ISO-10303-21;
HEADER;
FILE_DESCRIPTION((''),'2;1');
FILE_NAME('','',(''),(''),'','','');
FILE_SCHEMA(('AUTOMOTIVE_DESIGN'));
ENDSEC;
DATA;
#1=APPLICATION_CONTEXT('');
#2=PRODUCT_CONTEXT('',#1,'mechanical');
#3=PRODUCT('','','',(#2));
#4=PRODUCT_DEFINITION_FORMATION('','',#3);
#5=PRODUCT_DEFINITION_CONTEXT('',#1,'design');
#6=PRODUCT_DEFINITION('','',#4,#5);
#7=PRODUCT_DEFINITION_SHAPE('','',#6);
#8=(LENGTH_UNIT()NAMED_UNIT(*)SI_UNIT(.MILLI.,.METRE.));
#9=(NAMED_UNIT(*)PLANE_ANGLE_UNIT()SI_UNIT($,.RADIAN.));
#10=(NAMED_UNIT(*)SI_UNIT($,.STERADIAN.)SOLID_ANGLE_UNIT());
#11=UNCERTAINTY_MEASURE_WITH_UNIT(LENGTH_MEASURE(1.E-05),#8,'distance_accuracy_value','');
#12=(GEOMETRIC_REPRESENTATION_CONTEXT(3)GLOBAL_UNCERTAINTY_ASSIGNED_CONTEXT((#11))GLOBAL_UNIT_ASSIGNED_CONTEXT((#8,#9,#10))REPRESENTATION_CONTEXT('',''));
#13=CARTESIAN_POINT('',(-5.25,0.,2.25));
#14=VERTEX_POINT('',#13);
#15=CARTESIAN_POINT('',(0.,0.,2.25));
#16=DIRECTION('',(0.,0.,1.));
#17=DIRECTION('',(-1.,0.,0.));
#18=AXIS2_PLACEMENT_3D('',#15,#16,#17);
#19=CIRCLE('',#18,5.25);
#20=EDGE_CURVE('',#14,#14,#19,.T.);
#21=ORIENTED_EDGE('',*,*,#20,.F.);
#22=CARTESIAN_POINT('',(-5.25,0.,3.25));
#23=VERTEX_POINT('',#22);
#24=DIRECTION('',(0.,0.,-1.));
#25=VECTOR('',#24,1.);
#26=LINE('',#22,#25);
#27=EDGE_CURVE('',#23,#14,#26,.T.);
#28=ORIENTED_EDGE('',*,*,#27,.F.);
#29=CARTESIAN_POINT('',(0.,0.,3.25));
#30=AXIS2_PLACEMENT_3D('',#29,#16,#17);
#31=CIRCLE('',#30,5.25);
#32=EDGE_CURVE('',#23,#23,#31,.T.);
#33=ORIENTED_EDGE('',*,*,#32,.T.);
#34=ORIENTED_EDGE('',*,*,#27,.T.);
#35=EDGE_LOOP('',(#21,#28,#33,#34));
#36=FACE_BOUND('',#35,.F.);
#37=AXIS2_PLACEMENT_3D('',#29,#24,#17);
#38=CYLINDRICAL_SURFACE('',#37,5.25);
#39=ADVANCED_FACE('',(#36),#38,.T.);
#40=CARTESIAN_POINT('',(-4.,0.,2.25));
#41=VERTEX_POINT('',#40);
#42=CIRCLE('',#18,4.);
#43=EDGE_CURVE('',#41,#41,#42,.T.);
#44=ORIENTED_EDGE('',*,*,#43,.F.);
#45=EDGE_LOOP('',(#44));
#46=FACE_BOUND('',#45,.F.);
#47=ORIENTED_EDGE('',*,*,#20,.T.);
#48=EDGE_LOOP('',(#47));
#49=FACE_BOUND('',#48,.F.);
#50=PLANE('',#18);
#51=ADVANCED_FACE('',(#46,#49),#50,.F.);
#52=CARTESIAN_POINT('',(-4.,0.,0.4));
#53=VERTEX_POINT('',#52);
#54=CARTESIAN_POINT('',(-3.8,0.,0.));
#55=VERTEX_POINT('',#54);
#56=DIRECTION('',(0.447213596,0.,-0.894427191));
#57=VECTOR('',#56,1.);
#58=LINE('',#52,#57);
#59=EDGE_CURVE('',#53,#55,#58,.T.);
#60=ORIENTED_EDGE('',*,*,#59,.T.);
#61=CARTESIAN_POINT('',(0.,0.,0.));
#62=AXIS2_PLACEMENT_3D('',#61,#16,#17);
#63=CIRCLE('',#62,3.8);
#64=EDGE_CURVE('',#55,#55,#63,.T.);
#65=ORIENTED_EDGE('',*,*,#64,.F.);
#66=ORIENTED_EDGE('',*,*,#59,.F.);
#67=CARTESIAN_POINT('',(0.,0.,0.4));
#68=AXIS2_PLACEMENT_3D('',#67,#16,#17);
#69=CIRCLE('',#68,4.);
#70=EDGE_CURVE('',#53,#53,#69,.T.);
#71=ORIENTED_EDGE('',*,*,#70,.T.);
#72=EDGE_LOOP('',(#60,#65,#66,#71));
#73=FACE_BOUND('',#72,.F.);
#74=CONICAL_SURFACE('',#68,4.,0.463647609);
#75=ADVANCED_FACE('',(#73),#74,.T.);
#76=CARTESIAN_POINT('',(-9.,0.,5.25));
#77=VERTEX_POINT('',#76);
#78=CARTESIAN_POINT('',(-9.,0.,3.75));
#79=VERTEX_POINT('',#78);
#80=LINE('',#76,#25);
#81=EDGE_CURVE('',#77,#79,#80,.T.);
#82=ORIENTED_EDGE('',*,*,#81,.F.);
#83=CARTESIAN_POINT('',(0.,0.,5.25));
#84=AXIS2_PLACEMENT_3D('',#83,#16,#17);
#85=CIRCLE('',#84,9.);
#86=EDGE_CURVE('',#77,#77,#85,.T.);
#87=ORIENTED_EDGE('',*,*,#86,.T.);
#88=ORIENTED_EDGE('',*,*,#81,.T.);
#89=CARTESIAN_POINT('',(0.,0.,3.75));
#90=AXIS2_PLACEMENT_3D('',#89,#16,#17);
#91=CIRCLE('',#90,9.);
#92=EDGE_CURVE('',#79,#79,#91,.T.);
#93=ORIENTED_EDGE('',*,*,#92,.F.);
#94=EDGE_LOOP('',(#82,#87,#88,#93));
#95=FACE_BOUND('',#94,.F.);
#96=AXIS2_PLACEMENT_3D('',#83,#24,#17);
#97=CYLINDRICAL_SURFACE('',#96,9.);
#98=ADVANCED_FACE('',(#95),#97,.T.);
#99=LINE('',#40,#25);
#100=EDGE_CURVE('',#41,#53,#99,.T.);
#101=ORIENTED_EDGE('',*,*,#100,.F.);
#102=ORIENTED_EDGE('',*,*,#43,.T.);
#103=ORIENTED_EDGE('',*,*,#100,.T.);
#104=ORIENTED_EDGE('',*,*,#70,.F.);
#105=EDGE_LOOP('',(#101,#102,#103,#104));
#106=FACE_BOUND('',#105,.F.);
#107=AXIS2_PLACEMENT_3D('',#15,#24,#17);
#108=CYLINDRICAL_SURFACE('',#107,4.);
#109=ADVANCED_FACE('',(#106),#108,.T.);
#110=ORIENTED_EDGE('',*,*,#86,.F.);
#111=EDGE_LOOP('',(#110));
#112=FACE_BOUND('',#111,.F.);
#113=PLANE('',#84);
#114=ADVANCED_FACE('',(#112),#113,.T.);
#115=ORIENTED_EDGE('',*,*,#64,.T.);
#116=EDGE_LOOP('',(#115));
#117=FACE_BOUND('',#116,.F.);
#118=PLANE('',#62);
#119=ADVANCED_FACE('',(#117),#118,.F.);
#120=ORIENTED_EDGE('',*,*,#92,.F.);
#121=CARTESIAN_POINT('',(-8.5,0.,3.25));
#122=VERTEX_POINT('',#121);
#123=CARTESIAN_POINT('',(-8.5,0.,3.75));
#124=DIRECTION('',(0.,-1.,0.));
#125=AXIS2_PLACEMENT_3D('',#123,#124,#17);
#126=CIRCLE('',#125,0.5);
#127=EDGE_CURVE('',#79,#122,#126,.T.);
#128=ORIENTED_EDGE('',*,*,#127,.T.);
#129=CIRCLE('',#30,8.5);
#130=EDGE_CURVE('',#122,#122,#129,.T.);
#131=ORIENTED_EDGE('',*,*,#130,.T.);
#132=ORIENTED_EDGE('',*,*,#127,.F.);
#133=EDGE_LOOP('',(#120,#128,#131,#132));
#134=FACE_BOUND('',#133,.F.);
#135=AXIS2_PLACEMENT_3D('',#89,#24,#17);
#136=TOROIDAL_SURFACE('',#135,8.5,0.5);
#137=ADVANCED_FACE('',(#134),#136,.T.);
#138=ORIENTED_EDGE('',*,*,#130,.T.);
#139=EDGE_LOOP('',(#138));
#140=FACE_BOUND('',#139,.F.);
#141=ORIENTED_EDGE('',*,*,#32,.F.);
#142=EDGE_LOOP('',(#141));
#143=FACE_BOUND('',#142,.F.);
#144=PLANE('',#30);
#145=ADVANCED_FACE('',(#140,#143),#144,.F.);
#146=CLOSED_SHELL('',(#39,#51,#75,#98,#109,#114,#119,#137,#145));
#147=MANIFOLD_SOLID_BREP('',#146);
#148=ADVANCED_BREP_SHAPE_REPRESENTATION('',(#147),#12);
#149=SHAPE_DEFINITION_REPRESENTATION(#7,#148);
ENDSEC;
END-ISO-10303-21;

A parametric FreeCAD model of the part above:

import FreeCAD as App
import Part
import Sketcher

V = App.Vector


def edges_at(feature, points):
    """Names of the edges that pass closest to the given points."""
    edges = feature.Shape.Edges
    near = lambda p: min(range(len(edges)), key=lambda i: edges[i].distToShape(Part.Vertex(*p))[0])
    return sorted({f"Edge{near(p) + 1}" for p in points})


def add_polygon(sketch, points):
    """Adds a closed chain of lines whose ends are joined by coincident constraints."""
    first, n = sketch.GeometryCount, len(points)
    for a, b in zip(points, points[1:] + points[:1]):
        sketch.addGeometry(Part.LineSegment(App.Vector(*a, 0), App.Vector(*b, 0)), False)
    for i in range(n):
        sketch.addConstraint(Sketcher.Constraint("Coincident", first + i, 2, first + (i + 1) % n, 1))

doc = App.newDocument("Part")
params = doc.addObject("Spreadsheet::Sheet", "Params")
for row, (alias, value) in enumerate([
    ("sketch1_width", "4 mm"),
    ("sketch1_width2", "9 mm"),
    ("sketch1_height", "2 mm"),
    ("sketch1_height2", "1 mm"),
    ("sketch1_width3", "3.75 mm"),
    ("revolution_angle", "360 deg"),
    ("fillet_radius", "0.5 mm"),
    ("chamfer_size", "0.4 mm"),
    ("chamfer_size2", "0.2 mm"),
], start=1):
    params.set(f"A{row}", alias)
    params.set(f"B{row}", "=" + value)
    params.setAlias(f"B{row}", alias)

body = doc.addObject("PartDesign::Body", "Body")

sketch1 = body.newObject("Sketcher::SketchObject", "Sketch")
sketch1.AttachmentSupport = (doc.getObject("XZ_Plane"), [""])
sketch1.MapMode = "FlatFace"
add_polygon(sketch1, [(-4, 0), (0, 0), (0, 5.2), (-9, 5.2), (-9, 3.2), (-5.2, 3.2), (-5.2, 2.2), (-4, 2.2)])
sketch1.addConstraint([
    Sketcher.Constraint("Horizontal", 0),
    Sketcher.Constraint("Vertical", 1),
    Sketcher.Constraint("Horizontal", 2),
    Sketcher.Constraint("Vertical", 3),
    Sketcher.Constraint("Horizontal", 4),
    Sketcher.Constraint("Vertical", 5),
    Sketcher.Constraint("Horizontal", 6),
    Sketcher.Constraint("Vertical", 7),
    Sketcher.Constraint("Coincident", 0, 2, -1, 1),
    Sketcher.Constraint("DistanceX", 0, 1, 0, 2, 4.0),
    Sketcher.Constraint("DistanceX", 2, 2, 2, 1, 9.0),
    Sketcher.Constraint("DistanceY", 3, 2, 3, 1, 2.0),
    Sketcher.Constraint("DistanceY", 5, 2, 5, 1, 1.0),
    Sketcher.Constraint("DistanceX", 4, 1, 4, 2, 3.75),
    Sketcher.Constraint("DistanceY", 1, 1, 1, 2, 5.25),
])
sketch1.setExpression("Constraints[17]", "Params.sketch1_width")
sketch1.setExpression("Constraints[18]", "Params.sketch1_width2")
sketch1.setExpression("Constraints[19]", "Params.sketch1_height")
sketch1.setExpression("Constraints[20]", "Params.sketch1_height2")
sketch1.setExpression("Constraints[21]", "Params.sketch1_width3")
revolution = body.newObject("PartDesign::Revolution", "Revolution")
revolution.Profile = sketch1
revolution.ReferenceAxis = (sketch1, ["V_Axis"])
revolution.setExpression("Angle", "Params.revolution_angle")
doc.recompute()

fillet = body.newObject("PartDesign::Fillet", "Fillet")
fillet.Base = (revolution, edges_at(revolution, [(9, 0, 3.25)]))
fillet.setExpression("Radius", "Params.fillet_radius")
doc.recompute()

chamfer = body.newObject("PartDesign::Chamfer", "Chamfer")
chamfer.Base = (fillet, edges_at(fillet, [(4, 0, 0)]))
chamfer.ChamferType = "Two distances"
chamfer.setExpression("Size", "Params.chamfer_size")
chamfer.setExpression("Size2", "Params.chamfer_size2")

doc.recompute()
